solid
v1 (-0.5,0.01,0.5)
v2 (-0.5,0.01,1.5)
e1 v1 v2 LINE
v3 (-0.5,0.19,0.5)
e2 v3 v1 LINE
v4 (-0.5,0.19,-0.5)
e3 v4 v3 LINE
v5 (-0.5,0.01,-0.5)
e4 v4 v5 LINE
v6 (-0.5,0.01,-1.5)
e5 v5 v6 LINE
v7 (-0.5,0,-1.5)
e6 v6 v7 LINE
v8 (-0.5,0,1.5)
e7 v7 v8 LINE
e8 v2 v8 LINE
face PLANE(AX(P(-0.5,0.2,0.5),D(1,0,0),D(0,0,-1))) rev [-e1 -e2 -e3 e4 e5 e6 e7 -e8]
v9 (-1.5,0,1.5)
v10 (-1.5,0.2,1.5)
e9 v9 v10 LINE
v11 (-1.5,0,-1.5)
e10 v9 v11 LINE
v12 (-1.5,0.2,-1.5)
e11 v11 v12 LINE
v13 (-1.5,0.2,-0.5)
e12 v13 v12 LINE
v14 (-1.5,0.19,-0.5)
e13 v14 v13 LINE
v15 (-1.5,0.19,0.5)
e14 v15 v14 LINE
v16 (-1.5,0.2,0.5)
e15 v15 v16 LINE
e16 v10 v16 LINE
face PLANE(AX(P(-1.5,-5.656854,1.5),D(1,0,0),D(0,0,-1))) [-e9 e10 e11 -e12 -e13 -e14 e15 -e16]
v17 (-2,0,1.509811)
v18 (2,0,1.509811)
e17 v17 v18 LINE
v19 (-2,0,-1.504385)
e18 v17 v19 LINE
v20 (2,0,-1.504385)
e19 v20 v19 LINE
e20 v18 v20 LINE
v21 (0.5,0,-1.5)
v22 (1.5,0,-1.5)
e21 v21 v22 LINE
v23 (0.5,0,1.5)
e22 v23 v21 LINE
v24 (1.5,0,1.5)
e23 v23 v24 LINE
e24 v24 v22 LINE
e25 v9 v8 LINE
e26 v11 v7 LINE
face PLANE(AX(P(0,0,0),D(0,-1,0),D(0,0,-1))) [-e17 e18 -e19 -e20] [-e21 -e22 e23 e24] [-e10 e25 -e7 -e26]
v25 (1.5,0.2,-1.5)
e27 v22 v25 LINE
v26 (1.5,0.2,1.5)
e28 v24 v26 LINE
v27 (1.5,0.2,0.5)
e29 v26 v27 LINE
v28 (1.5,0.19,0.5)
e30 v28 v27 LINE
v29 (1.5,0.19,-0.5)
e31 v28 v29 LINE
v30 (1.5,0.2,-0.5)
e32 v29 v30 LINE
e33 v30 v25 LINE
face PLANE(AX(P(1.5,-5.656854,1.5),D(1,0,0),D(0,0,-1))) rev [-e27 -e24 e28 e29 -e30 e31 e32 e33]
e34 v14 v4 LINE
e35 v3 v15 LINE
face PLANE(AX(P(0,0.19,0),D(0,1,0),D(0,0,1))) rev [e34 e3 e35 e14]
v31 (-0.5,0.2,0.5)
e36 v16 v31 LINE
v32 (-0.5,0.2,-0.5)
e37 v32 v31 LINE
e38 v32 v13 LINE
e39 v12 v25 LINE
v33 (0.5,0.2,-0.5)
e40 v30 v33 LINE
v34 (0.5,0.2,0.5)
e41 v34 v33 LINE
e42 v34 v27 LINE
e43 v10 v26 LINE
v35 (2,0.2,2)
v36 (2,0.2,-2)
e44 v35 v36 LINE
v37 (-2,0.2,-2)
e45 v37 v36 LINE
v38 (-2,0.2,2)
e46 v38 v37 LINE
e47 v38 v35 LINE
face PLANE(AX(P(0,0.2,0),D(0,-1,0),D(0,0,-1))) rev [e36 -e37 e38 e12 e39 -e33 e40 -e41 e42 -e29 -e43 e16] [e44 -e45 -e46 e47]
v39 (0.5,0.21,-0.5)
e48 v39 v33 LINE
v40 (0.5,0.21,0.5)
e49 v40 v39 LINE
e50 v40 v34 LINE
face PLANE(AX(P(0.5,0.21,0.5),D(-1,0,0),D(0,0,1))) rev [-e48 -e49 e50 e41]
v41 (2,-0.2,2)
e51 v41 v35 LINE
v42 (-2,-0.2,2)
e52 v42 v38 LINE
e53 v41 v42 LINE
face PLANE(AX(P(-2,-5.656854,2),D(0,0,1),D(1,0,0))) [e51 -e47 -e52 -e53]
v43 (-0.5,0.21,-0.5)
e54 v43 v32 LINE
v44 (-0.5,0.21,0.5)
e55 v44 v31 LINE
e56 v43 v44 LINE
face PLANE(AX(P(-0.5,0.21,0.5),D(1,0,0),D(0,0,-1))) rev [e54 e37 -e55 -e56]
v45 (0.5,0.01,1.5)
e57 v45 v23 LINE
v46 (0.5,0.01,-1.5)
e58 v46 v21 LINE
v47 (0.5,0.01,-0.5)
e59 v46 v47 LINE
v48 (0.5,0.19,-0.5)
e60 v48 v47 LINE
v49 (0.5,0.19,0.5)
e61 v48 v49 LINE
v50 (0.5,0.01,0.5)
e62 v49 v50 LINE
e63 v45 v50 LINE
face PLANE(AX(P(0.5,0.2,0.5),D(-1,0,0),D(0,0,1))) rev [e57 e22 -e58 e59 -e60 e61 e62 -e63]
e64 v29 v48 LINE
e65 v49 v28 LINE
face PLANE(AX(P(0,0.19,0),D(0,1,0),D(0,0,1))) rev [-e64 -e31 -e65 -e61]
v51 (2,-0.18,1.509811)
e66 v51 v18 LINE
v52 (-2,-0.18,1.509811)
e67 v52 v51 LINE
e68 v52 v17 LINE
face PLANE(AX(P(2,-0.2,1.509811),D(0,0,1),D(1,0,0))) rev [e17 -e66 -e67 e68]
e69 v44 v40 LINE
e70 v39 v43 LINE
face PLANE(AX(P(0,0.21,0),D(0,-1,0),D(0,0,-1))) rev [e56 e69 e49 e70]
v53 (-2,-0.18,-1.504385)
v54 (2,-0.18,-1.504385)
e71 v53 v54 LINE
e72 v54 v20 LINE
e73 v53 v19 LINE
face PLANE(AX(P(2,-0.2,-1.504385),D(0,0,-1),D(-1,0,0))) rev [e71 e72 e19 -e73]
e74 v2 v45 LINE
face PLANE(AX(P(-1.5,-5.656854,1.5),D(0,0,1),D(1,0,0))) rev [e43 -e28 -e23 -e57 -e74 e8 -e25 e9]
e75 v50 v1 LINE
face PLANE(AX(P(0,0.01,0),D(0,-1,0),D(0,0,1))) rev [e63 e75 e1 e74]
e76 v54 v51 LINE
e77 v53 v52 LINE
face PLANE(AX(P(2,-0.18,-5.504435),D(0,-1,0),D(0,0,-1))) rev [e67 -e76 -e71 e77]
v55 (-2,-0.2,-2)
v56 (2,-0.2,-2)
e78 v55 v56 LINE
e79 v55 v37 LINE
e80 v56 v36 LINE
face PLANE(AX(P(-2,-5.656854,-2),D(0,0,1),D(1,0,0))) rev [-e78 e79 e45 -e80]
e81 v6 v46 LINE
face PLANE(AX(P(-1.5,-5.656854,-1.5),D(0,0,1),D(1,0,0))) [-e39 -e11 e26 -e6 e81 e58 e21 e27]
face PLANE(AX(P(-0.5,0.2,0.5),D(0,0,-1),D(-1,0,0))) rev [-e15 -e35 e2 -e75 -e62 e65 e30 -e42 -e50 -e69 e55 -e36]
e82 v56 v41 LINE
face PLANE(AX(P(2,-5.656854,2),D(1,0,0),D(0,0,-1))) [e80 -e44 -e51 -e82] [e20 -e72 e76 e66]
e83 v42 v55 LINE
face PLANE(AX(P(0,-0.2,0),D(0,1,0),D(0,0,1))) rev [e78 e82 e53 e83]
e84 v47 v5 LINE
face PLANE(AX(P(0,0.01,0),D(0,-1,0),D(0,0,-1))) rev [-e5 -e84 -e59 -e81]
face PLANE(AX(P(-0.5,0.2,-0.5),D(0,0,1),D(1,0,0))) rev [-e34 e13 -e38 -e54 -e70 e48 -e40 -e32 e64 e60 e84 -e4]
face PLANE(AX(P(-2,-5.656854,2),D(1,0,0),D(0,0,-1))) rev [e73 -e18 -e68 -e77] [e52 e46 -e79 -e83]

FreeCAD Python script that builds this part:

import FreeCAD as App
import Part
import Sketcher

doc = App.newDocument("Part")
params = doc.addObject("Spreadsheet::Sheet", "Params")
for row, (alias, value) in enumerate([
    ("sketch1_width", "1 mm"),
    ("pad1_length", "0.2 mm"),
    ("sketch2_width", "4 mm"),
    ("sketch2_width2", "3 mm"),
    ("pad2_length", "0.2 mm"),
    ("sketch3_width", "1 mm"),
    ("pad3_length", "0.01 mm"),
    ("sketch4_width", "1 mm"),
    ("pad4_length", "0.01 mm"),
    ("sketch5_width", "1 mm"),
    ("pad5_length", "0.01 mm"),
    ("sketch6_width", "4 mm"),
    ("pad6_length", "0.2 mm"),
    ("sketch7_width", "4 mm"),
    ("sketch7_height", "0.02 mm"),
    ("pad7_length", "3.014196 mm"),
], start=1):
    params.set(f"A{row}", alias)
    params.set(f"B{row}", "=" + value)
    params.setAlias(f"B{row}", alias)

body = doc.addObject("PartDesign::Body", "Body")

# Sketch on XZ plane
sketch1 = body.newObject("Sketcher::SketchObject", "Sketch")
sketch1.AttachmentSupport = (doc.getObject("XZ_Plane"), [""])
sketch1.MapMode = "FlatFace"
sketch1.addGeometry([
    Part.LineSegment(App.Vector(-0.5, -0.5, 0), App.Vector(-0.5, 0.5, 0)),
    Part.LineSegment(App.Vector(-0.5, 0.5, 0), App.Vector(0.5, 0.5, 0)),
    Part.LineSegment(App.Vector(0.5, 0.5, 0), App.Vector(0.5, -0.5, 0)),
    Part.LineSegment(App.Vector(0.5, -0.5, 0), App.Vector(-0.5, -0.5, 0)),
], False)
sketch1.addConstraint([
    Sketcher.Constraint("Coincident", 0, 2, 1, 1),
    Sketcher.Constraint("Coincident", 1, 2, 2, 1),
    Sketcher.Constraint("Coincident", 2, 2, 3, 1),
    Sketcher.Constraint("Coincident", 3, 2, 0, 1),
    Sketcher.Constraint("Vertical", 0),
    Sketcher.Constraint("Horizontal", 1),
    Sketcher.Constraint("Vertical", 2),
    Sketcher.Constraint("Horizontal", 3),
    Sketcher.Constraint("Symmetric", 0, 2, 2, 2, -1, 1),
    Sketcher.Constraint("Equal", 3, 0),
    Sketcher.Constraint("DistanceX", 1, 1, 1, 2, 1.0),
])
sketch1.setExpression("Constraints[10]", "Params.sketch1_width")
pad1 = body.newObject("PartDesign::Pad", "Pad")
pad1.Profile = sketch1
pad1.setExpression("Length", "Params.pad1_length")
pad1.Reversed = True
body2 = doc.addObject("PartDesign::Body", "Body001")

# Sketch on XZ plane
sketch2 = body2.newObject("Sketcher::SketchObject", "Sketch001")
sketch2.AttachmentSupport = (doc.getObject("XZ_Plane001"), [""])
sketch2.MapMode = "FlatFace"
sketch2.AttachmentOffset = App.Placement(App.Vector(0, 0, -0.2), App.Rotation())
sketch2.addGeometry([
    Part.LineSegment(App.Vector(-2, -2, 0), App.Vector(-2, 2, 0)),  # 0
    Part.LineSegment(App.Vector(-2, 2, 0), App.Vector(2, 2, 0)),  # 1
    Part.LineSegment(App.Vector(2, 2, 0), App.Vector(2, -2, 0)),  # 2
    Part.LineSegment(App.Vector(2, -2, 0), App.Vector(-2, -2, 0)),  # 3
    Part.LineSegment(App.Vector(1.5, 1.5, 0), App.Vector(-1.5, 1.5, 0)),  # 4
    Part.LineSegment(App.Vector(-1.5, 1.5, 0), App.Vector(-1.5, -1.5, 0)),  # 5
    Part.LineSegment(App.Vector(-1.5, -1.5, 0), App.Vector(1.5, -1.5, 0)),  # 6
    Part.LineSegment(App.Vector(1.5, -1.5, 0), App.Vector(1.5, 1.5, 0)),  # 7
], False)
sketch2.addConstraint([
    Sketcher.Constraint("Coincident", 0, 2, 1, 1),
    Sketcher.Constraint("Coincident", 1, 2, 2, 1),
    Sketcher.Constraint("Coincident", 2, 2, 3, 1),
    Sketcher.Constraint("Coincident", 3, 2, 0, 1),
    Sketcher.Constraint("Coincident", 4, 2, 5, 1),
    Sketcher.Constraint("Coincident", 5, 2, 6, 1),
    Sketcher.Constraint("Coincident", 6, 2, 7, 1),
    Sketcher.Constraint("Coincident", 7, 2, 4, 1),
    Sketcher.Constraint("Vertical", 0),
    Sketcher.Constraint("Horizontal", 1),
    Sketcher.Constraint("Vertical", 2),
    Sketcher.Constraint("Horizontal", 3),
    Sketcher.Constraint("Horizontal", 4),
    Sketcher.Constraint("Vertical", 5),
    Sketcher.Constraint("Horizontal", 6),
    Sketcher.Constraint("Vertical", 7),
    Sketcher.Constraint("Symmetric", 0, 2, 2, 2, -1, 1),
    Sketcher.Constraint("Symmetric", 4, 2, 6, 2, -1, 1),
    Sketcher.Constraint("Equal", 3, 0),
    Sketcher.Constraint("Equal", 6, 5),
    Sketcher.Constraint("DistanceX", 1, 1, 1, 2, 4.0),
    Sketcher.Constraint("DistanceX", 4, 2, 4, 1, 3.0),
])
sketch2.setExpression("Constraints[20]", "Params.sketch2_width")
sketch2.setExpression("Constraints[21]", "Params.sketch2_width2")
pad2 = body2.newObject("PartDesign::Pad", "Pad001")
pad2.Profile = sketch2
pad2.setExpression("Length", "Params.pad2_length")
body.AllowCompound = True
doc.recompute()

boolean = body.newObject("PartDesign::Boolean", "Boolean")
boolean.Type = "Fuse"
boolean.addObjects([body2])

# Sketch on XZ plane
sketch3 = body.newObject("Sketcher::SketchObject", "Sketch002")
sketch3.AttachmentSupport = (doc.getObject("XZ_Plane"), [""])
sketch3.MapMode = "FlatFace"
sketch3.addGeometry([
    Part.LineSegment(App.Vector(-0.5, -0.5, 0), App.Vector(-0.5, -1.5, 0)),
    Part.LineSegment(App.Vector(-0.5, -1.5, 0), App.Vector(0.5, -1.5, 0)),
    Part.LineSegment(App.Vector(0.5, -1.5, 0), App.Vector(0.5, -0.5, 0)),
    Part.LineSegment(App.Vector(0.5, -0.5, 0), App.Vector(-0.5, -0.5, 0)),
], False)
sketch3.addConstraint([
    Sketcher.Constraint("Coincident", 0, 2, 1, 1),
    Sketcher.Constraint("Coincident", 1, 2, 2, 1),
    Sketcher.Constraint("Coincident", 2, 2, 3, 1),
    Sketcher.Constraint("Coincident", 3, 2, 0, 1),
    Sketcher.Constraint("Vertical", 0),
    Sketcher.Constraint("Horizontal", 1),
    Sketcher.Constraint("Vertical", 2),
    Sketcher.Constraint("Horizontal", 3),
    Sketcher.Constraint("Equal", 3, 0),
    Sketcher.Constraint("DistanceX", 1, 1, 1, 2, 1.0),
    Sketcher.Constraint("DistanceX", 0, 2, -1, 1, 0.5),
    Sketcher.Constraint("DistanceY", 0, 2, -1, 1, 1.5),
])
sketch3.setExpression("Constraints[9]", "Params.sketch3_width")
pad3 = body.newObject("PartDesign::Pad", "Pad002")
pad3.Profile = sketch3
pad3.setExpression("Length", "Params.pad3_length")
pad3.Reversed = True
doc.recompute()

mirrored = body.newObject("PartDesign::Mirrored", "Mirrored")
mirrored.Originals = [pad3]
mirrored.MirrorPlane = (doc.getObject("XY_Plane"), [""])
body.Tip = mirrored

# Sketch on XZ plane
sketch4 = body.newObject("Sketcher::SketchObject", "Sketch003")
sketch4.AttachmentSupport = (doc.getObject("XZ_Plane"), [""])
sketch4.MapMode = "FlatFace"
sketch4.AttachmentOffset = App.Placement(App.Vector(0, 0, -0.2), App.Rotation())
sketch4.addGeometry([
    Part.LineSegment(App.Vector(0.5, -0.5, 0), App.Vector(0.5, 0.5, 0)),
    Part.LineSegment(App.Vector(0.5, 0.5, 0), App.Vector(1.5, 0.5, 0)),
    Part.LineSegment(App.Vector(1.5, 0.5, 0), App.Vector(1.5, -0.5, 0)),
    Part.LineSegment(App.Vector(1.5, -0.5, 0), App.Vector(0.5, -0.5, 0)),
], False)
sketch4.addConstraint([
    Sketcher.Constraint("Coincident", 0, 2, 1, 1),
    Sketcher.Constraint("Coincident", 1, 2, 2, 1),
    Sketcher.Constraint("Coincident", 2, 2, 3, 1),
    Sketcher.Constraint("Coincident", 3, 2, 0, 1),
    Sketcher.Constraint("Vertical", 0),
    Sketcher.Constraint("Horizontal", 1),
    Sketcher.Constraint("Vertical", 2),
    Sketcher.Constraint("Horizontal", 3),
    Sketcher.Constraint("Equal", 3, 0),
    Sketcher.Constraint("DistanceX", 1, 1, 1, 2, 1.0),
    Sketcher.Constraint("DistanceX", -1, 1, 0, 2, 0.5),
    Sketcher.Constraint("DistanceY", -1, 1, 0, 2, 0.5),
])
sketch4.setExpression("Constraints[9]", "Params.sketch4_width")
pad4 = body.newObject("PartDesign::Pad", "Pad003")
pad4.Profile = sketch4
pad4.setExpression("Length", "Params.pad4_length")
doc.recompute()

mirrored2 = body.newObject("PartDesign::Mirrored", "Mirrored001")
mirrored2.Originals = [pad4]
mirrored2.MirrorPlane = (doc.getObject("YZ_Plane"), [""])
body.Tip = mirrored2

# Sketch on XZ plane
sketch5 = body.newObject("Sketcher::SketchObject", "Sketch004")
sketch5.AttachmentSupport = (doc.getObject("XZ_Plane"), [""])
sketch5.MapMode = "FlatFace"
sketch5.AttachmentOffset = App.Placement(App.Vector(0, 0, -0.2), App.Rotation())
sketch5.addGeometry([
    Part.LineSegment(App.Vector(-0.5, -0.5, 0), App.Vector(-0.5, 0.5, 0)),
    Part.LineSegment(App.Vector(-0.5, 0.5, 0), App.Vector(0.5, 0.5, 0)),
    Part.LineSegment(App.Vector(0.5, 0.5, 0), App.Vector(0.5, -0.5, 0)),
    Part.LineSegment(App.Vector(0.5, -0.5, 0), App.Vector(-0.5, -0.5, 0)),
], False)
sketch5.addConstraint([
    Sketcher.Constraint("Coincident", 0, 2, 1, 1),
    Sketcher.Constraint("Coincident", 1, 2, 2, 1),
    Sketcher.Constraint("Coincident", 2, 2, 3, 1),
    Sketcher.Constraint("Coincident", 3, 2, 0, 1),
    Sketcher.Constraint("Vertical", 0),
    Sketcher.Constraint("Horizontal", 1),
    Sketcher.Constraint("Vertical", 2),
    Sketcher.Constraint("Horizontal", 3),
    Sketcher.Constraint("Symmetric", 0, 2, 2, 2, -1, 1),
    Sketcher.Constraint("Equal", 3, 0),
    Sketcher.Constraint("DistanceX", 1, 1, 1, 2, 1.0),
])
sketch5.setExpression("Constraints[10]", "Params.sketch5_width")
pad5 = body.newObject("PartDesign::Pad", "Pad004")
pad5.Profile = sketch5
pad5.setExpression("Length", "Params.pad5_length")
pad5.Reversed = True

# Sketch on XZ plane
sketch6 = body.newObject("Sketcher::SketchObject", "Sketch005")
sketch6.AttachmentSupport = (doc.getObject("XZ_Plane"), [""])
sketch6.MapMode = "FlatFace"
sketch6.addGeometry([
    Part.LineSegment(App.Vector(-2, 2, 0), App.Vector(-2, 1.51, 0)),  # 0
    Part.LineSegment(App.Vector(-2, 1.51, 0), App.Vector(2, 1.51, 0)),  # 1
    Part.LineSegment(App.Vector(2, 1.51, 0), App.Vector(2, 2, 0)),  # 2
    Part.LineSegment(App.Vector(2, 2, 0), App.Vector(-2, 2, 0)),  # 3
    Part.LineSegment(App.Vector(-2, -1.5, 0), App.Vector(-2, -2, 0)),  # 4
    Part.LineSegment(App.Vector(-2, -2, 0), App.Vector(2, -2, 0)),  # 5
    Part.LineSegment(App.Vector(2, -2, 0), App.Vector(2, -1.5, 0)),  # 6
    Part.LineSegment(App.Vector(2, -1.5, 0), App.Vector(-2, -1.5, 0)),  # 7
], False)
sketch6.addConstraint([
    Sketcher.Constraint("Coincident", 0, 2, 1, 1),
    Sketcher.Constraint("Coincident", 1, 2, 2, 1),
    Sketcher.Constraint("Coincident", 2, 2, 3, 1),
    Sketcher.Constraint("Coincident", 3, 2, 0, 1),
    Sketcher.Constraint("Coincident", 4, 2, 5, 1),
    Sketcher.Constraint("Coincident", 5, 2, 6, 1),
    Sketcher.Constraint("Coincident", 6, 2, 7, 1),
    Sketcher.Constraint("Coincident", 7, 2, 4, 1),
    Sketcher.Constraint("Vertical", 0),
    Sketcher.Constraint("Horizontal", 1),
    Sketcher.Constraint("Vertical", 2),
    Sketcher.Constraint("Horizontal", 3),
    Sketcher.Constraint("Vertical", 4),
    Sketcher.Constraint("Horizontal", 5),
    Sketcher.Constraint("Vertical", 6),
    Sketcher.Constraint("Horizontal", 7),
    Sketcher.Constraint("Symmetric", 2, 2, 4, 2, -1, 1),
    Sketcher.Constraint("Vertical", 3, 2, 4, 2),
    Sketcher.Constraint("Vertical", 2, 2, 5, 2),
    Sketcher.Constraint("DistanceX", 1, 1, 1, 2, 4.0),
    Sketcher.Constraint("DistanceY", -1, 1, 2, 2, 2.0),
    Sketcher.Constraint("DistanceY", 0, 2, 0, 1, 0.490189),
    Sketcher.Constraint("DistanceY", 4, 2, 4, 1, 0.495615),
])
sketch6.setExpression("Constraints[19]", "Params.sketch6_width")
pad6 = body.newObject("PartDesign::Pad", "Pad005")
pad6.Profile = sketch6
pad6.setExpression("Length", "Params.pad6_length")

# Sketch on XY plane
sketch7 = body.newObject("Sketcher::SketchObject", "Sketch006")
sketch7.AttachmentSupport = (doc.getObject("XY_Plane"), [""])
sketch7.MapMode = "FlatFace"
sketch7.AttachmentOffset = App.Placement(App.Vector(0, 0, 1.509811), App.Rotation())
sketch7.addGeometry([
    Part.LineSegment(App.Vector(2, -0.18, 0), App.Vector(2, -0.2, 0)),
    Part.LineSegment(App.Vector(2, -0.2, 0), App.Vector(-2, -0.2, 0)),
    Part.LineSegment(App.Vector(-2, -0.2, 0), App.Vector(-2, -0.18, 0)),
    Part.LineSegment(App.Vector(-2, -0.18, 0), App.Vector(2, -0.18, 0)),
], False)
sketch7.addConstraint([
    Sketcher.Constraint("Coincident", 0, 2, 1, 1),
    Sketcher.Constraint("Coincident", 1, 2, 2, 1),
    Sketcher.Constraint("Coincident", 2, 2, 3, 1),
    Sketcher.Constraint("Coincident", 3, 2, 0, 1),
    Sketcher.Constraint("Vertical", 0),
    Sketcher.Constraint("Horizontal", 1),
    Sketcher.Constraint("Vertical", 2),
    Sketcher.Constraint("Horizontal", 3),
    Sketcher.Constraint("DistanceX", 1, 2, 1, 1, 4.0),
    Sketcher.Constraint("DistanceX", -1, 1, 0, 2, 2.0),
    Sketcher.Constraint("DistanceY", 0, 2, 0, 1, 0.02),
    Sketcher.Constraint("DistanceY", 0, 2, -1, 1, 0.2),
])
sketch7.setExpression("Constraints[8]", "Params.sketch7_width")
sketch7.setExpression("Constraints[10]", "Params.sketch7_height")
pad7 = body.newObject("PartDesign::Pad", "Pad006")
pad7.Profile = sketch7
pad7.setExpression("Length", "Params.pad7_length")
pad7.Reversed = True

doc.recompute()
